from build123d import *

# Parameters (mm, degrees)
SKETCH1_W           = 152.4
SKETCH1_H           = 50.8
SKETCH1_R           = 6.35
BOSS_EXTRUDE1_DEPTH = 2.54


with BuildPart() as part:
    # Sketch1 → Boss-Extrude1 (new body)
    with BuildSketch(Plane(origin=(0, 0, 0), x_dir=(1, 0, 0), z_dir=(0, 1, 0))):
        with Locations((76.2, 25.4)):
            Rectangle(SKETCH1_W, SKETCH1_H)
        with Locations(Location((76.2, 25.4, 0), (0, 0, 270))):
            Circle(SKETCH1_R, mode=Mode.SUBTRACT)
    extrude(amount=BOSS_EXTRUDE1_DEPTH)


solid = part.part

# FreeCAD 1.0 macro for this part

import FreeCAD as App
import Part
import Sketcher

V = App.Vector
Q = App.Units.Quantity

doc = App.newDocument("Part")
body = doc.addObject("PartDesign::Body", "Body")

sketch1 = doc.addObject("Sketcher::SketchObject", "Sketch")
body.addObject(sketch1)
sketch1.AttachmentSupport = (doc.XZ_Plane, [""])
sketch1.MapMode = "FlatFace"
sketch1.addGeometry([
    Part.LineSegment(V(0, -50.8, 0), V(0, 0, 0)),
    Part.LineSegment(V(0, 0, 0), V(152.4, 0, 0)),
    Part.LineSegment(V(152.4, 0, 0), V(152.4, -50.8, 0)),
    Part.LineSegment(V(152.4, -50.8, 0), V(0, -50.8, 0)),
    Part.Circle(V(76.2, -25.4, 0), V(0, 0, 1), 6.35),
], False)
sketch1.addConstraint([
    Sketcher.Constraint("Coincident", 0, 2, 1, 1),
    Sketcher.Constraint("Coincident", 1, 2, 2, 1),
    Sketcher.Constraint("Coincident", 2, 2, 3, 1),
    Sketcher.Constraint("Coincident", 3, 2, 0, 1),
    Sketcher.Constraint("Vertical", 0),
    Sketcher.Constraint("Horizontal", 1),
    Sketcher.Constraint("Vertical", 2),
    Sketcher.Constraint("Horizontal", 3),
    Sketcher.Constraint("Coincident", 0, 2, -1, 1),
    Sketcher.Constraint("Diameter", 4, Q("0.5 in")),
    Sketcher.Constraint("DistanceX", 1, 1, 1, 2, Q("6 in")),
    Sketcher.Constraint("DistanceY", 0, 1, 0, 2, Q("2 in")),
    Sketcher.Constraint("DistanceX", -1, 1, 4, 3, Q("3 in")),
    Sketcher.Constraint("DistanceY", 4, 3, -1, 1, Q("1 in")),
])
pad1 = doc.addObject("PartDesign::Pad", "Pad")
body.addObject(pad1)
pad1.Profile = sketch1
pad1.Length = Q("0.1 in")
pad1.Reversed = True

doc.recompute()
